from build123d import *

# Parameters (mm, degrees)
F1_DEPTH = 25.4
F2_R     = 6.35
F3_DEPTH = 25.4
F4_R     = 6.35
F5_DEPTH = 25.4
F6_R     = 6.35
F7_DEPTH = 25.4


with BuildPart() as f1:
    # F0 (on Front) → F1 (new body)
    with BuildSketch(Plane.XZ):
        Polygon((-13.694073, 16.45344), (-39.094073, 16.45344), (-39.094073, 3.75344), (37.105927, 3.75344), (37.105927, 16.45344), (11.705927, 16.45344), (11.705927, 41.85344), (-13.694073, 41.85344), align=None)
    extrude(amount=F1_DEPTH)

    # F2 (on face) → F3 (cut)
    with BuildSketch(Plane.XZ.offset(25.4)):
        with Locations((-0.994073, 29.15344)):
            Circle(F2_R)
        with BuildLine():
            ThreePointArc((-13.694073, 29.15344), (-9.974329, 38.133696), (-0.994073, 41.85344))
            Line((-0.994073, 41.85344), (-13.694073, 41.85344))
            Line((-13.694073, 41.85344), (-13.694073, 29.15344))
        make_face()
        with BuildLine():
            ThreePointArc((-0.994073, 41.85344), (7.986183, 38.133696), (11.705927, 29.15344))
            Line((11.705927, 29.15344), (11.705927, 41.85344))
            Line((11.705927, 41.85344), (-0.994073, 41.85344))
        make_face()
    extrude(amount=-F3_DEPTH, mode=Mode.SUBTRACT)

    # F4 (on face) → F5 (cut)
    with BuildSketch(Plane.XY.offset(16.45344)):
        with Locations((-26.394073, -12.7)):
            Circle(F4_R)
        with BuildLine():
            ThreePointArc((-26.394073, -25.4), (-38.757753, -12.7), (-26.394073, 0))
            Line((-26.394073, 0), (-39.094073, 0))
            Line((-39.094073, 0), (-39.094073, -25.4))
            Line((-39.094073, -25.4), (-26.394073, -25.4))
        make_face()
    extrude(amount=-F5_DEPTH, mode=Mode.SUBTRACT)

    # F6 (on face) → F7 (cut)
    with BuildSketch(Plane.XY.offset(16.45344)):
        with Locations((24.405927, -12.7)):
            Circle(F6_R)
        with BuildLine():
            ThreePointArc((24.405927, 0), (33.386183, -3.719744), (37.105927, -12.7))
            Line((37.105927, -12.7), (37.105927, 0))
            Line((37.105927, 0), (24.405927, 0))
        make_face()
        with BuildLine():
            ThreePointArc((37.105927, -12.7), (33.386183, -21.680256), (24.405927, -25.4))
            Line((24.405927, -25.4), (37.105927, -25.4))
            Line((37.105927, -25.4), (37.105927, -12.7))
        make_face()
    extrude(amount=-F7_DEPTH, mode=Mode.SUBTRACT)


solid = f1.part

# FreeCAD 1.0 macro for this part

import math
import FreeCAD as App
import Part
import Sketcher

V = App.Vector
Q = App.Units.Quantity


def add_polygon(sketch, points):
    """Adds a closed chain of lines whose ends are joined by coincident constraints."""
    first, n = sketch.GeometryCount, len(points)
    for a, b in zip(points, points[1:] + points[:1]):
        sketch.addGeometry(Part.LineSegment(App.Vector(*a, 0), App.Vector(*b, 0)), False)
    for i in range(n):
        sketch.addConstraint(Sketcher.Constraint("Coincident", first + i, 2, first + (i + 1) % n, 1))

doc = App.newDocument("Part")
body = doc.addObject("PartDesign::Body", "Body")

sketch1 = body.newObject("Sketcher::SketchObject", "Sketch")
sketch1.AttachmentSupport = (doc.getObject("XZ_Plane"), [""])
sketch1.MapMode = "FlatFace"
add_polygon(sketch1, [(-13.694073, 16.45344), (-39.094073, 16.45344), (-39.094073, 3.75344), (37.105927, 3.75344), (37.105927, 16.45344), (11.705927, 16.45344), (11.705927, 41.85344), (-13.694073, 41.85344)])
sketch1.addConstraint([
    Sketcher.Constraint("Horizontal", 0),
    Sketcher.Constraint("Vertical", 1),
    Sketcher.Constraint("Horizontal", 2),
    Sketcher.Constraint("Vertical", 3),
    Sketcher.Constraint("Horizontal", 4),
    Sketcher.Constraint("Vertical", 5),
    Sketcher.Constraint("Horizontal", 6),
    Sketcher.Constraint("Vertical", 7),
    Sketcher.Constraint("Horizontal", 0, 2, 3, 2),
    Sketcher.Constraint("Equal", 0, 4),
    Sketcher.Constraint("Equal", 4, 6),
    Sketcher.Constraint("Equal", 6, 5),
    Sketcher.Constraint("DistanceX", 0, 2, 0, 1, Q("1 in")),
    Sketcher.Constraint("DistanceY", 1, 2, 1, 1, Q("0.5 in")),
    Sketcher.Constraint("DistanceY", -1, 1, 0, 2, Q("16.45344 mm")),
    Sketcher.Constraint("DistanceX", 0, 2, -1, 1, Q("39.094073 mm")),
])
pad1 = body.newObject("PartDesign::Pad", "Pad")
pad1.Profile = sketch1
pad1.Length = Q("1 in")

sketch2 = body.newObject("Sketcher::SketchObject", "Sketch001")
sketch2.AttachmentSupport = (doc.getObject("XZ_Plane"), [""])
sketch2.MapMode = "FlatFace"
sketch2.AttachmentOffset = App.Placement(V(0, 0, 1 * 25.4), App.Rotation())
sketch2.addGeometry([
    Part.Circle(V(-0.994073, 29.15344, 0), V(0, 0, 1), 6.35),
    Part.ArcOfCircle(Part.Circle(V(-0.994073, 29.15344, 0), V(0, 0, 1), 12.7), math.radians(90.000002), math.radians(179.999998)),
    Part.LineSegment(V(-0.994073, 41.85344, 0), V(-13.694073, 41.85344, 0)),
    Part.LineSegment(V(-13.694073, 41.85344, 0), V(-13.694073, 29.15344, 0)),
    Part.ArcOfCircle(Part.Circle(V(-0.994073, 29.15344, 0), V(0, 0, 1), 12.7), math.radians(0.000002), math.radians(89.999998)),
    Part.LineSegment(V(11.705927, 29.15344, 0), V(11.705927, 41.85344, 0)),
    Part.LineSegment(V(11.705927, 41.85344, 0), V(-0.994073, 41.85344, 0)),
], False)
sketch2.addConstraint([
    Sketcher.Constraint("Tangent", 1, 1, 2, 1),
    Sketcher.Constraint("Coincident", 2, 2, 3, 1),
    Sketcher.Constraint("Tangent", 3, 2, 1, 2),
    Sketcher.Constraint("Tangent", 4, 1, 5, 1),
    Sketcher.Constraint("Coincident", 5, 2, 6, 1),
    Sketcher.Constraint("Tangent", 6, 2, 4, 2),
    Sketcher.Constraint("Horizontal", 2),
    Sketcher.Constraint("Vertical", 3),
    Sketcher.Constraint("Vertical", 5),
    Sketcher.Constraint("Horizontal", 6),
    Sketcher.Constraint("Coincident", 1, 3, 0, 3),
    Sketcher.Constraint("Coincident", 4, 3, 0, 3),
    Sketcher.Constraint("Equal", 1, 4),
    Sketcher.Constraint("Diameter", 0, Q("0.5 in")),
    Sketcher.Constraint("Radius", 1, Q("0.5 in")),
    Sketcher.Constraint("DistanceY", -1, 1, 0, 3, Q("29.15344 mm")),
    Sketcher.Constraint("DistanceX", 0, 3, -1, 1, Q("0.994073 mm")),
])
pocket1 = body.newObject("PartDesign::Pocket", "Pocket")
pocket1.Profile = sketch2
pocket1.Length = Q("1 in")

sketch3 = body.newObject("Sketcher::SketchObject", "Sketch002")
sketch3.AttachmentSupport = (doc.getObject("XY_Plane"), [""])
sketch3.MapMode = "FlatFace"
sketch3.AttachmentOffset = App.Placement(V(0, 0, 16.45344), App.Rotation())
sketch3.addGeometry([
    Part.Circle(V(-26.394073, -12.7, 0), V(0, 0, 1), 6.35),
    Part.ArcOfCircle(Part.Circle(V(-26.053179, -12.7, 0), V(0, 0, 1), 12.704574), math.radians(91.537568), math.radians(268.462432)),
    Part.LineSegment(V(-26.394073, 0, 0), V(-39.094073, 0, 0)),
    Part.LineSegment(V(-39.094073, 0, 0), V(-39.094073, -25.4, 0)),
    Part.LineSegment(V(-39.094073, -25.4, 0), V(-26.394073, -25.4, 0)),
], False)
sketch3.addConstraint([
    Sketcher.Constraint("Coincident", 1, 1, 2, 1),
    Sketcher.Constraint("Coincident", 2, 2, 3, 1),
    Sketcher.Constraint("Coincident", 3, 2, 4, 1),
    Sketcher.Constraint("Coincident", 4, 2, 1, 2),
    Sketcher.Constraint("Horizontal", 2),
    Sketcher.Constraint("Vertical", 3),
    Sketcher.Constraint("Horizontal", 4),
    Sketcher.Constraint("PointOnObject", 1, 1, -1),
    Sketcher.Constraint("Horizontal", 0, 3, 1, 3),
    Sketcher.Constraint("Vertical", 0, 3, 1, 1),
    Sketcher.Constraint("Vertical", 1, 1, 4, 2),
    Sketcher.Constraint("Diameter", 0, Q("0.5 in")),
    Sketcher.Constraint("DistanceY", 3, 2, 3, 1, Q("1 in")),
    Sketcher.Constraint("DistanceX", 2, 2, 2, 1, Q("0.5 in")),
    Sketcher.Constraint("Radius", 1, Q("12.704574 mm")),
    Sketcher.Constraint("DistanceX", 1, 3, -1, 1, Q("26.053179 mm")),
])
pocket2 = body.newObject("PartDesign::Pocket", "Pocket001")
pocket2.Profile = sketch3
pocket2.Length = Q("1 in")

sketch4 = body.newObject("Sketcher::SketchObject", "Sketch003")
sketch4.AttachmentSupport = (doc.getObject("XY_Plane"), [""])
sketch4.MapMode = "FlatFace"
sketch4.AttachmentOffset = App.Placement(V(0, 0, 16.45344), App.Rotation())
sketch4.addGeometry([
    Part.Circle(V(24.405927, -12.7, 0), V(0, 0, 1), 6.35),
    Part.ArcOfCircle(Part.Circle(V(24.405927, -12.7, 0), V(0, 0, 1), 12.7), math.radians(0.000002), math.radians(89.999998)),
    Part.LineSegment(V(37.105927, -12.7, 0), V(37.105927, 0, 0)),
    Part.LineSegment(V(37.105927, 0, 0), V(24.405927, 0, 0)),
    Part.ArcOfCircle(Part.Circle(V(24.405927, -12.7, 0), V(0, 0, 1), 12.7), math.radians(-89.999998), math.radians(-0.000002)),
    Part.LineSegment(V(24.405927, -25.4, 0), V(37.105927, -25.4, 0)),
    Part.LineSegment(V(37.105927, -25.4, 0), V(37.105927, -12.7, 0)),
], False)
sketch4.addConstraint([
    Sketcher.Constraint("Tangent", 1, 1, 2, 1),
    Sketcher.Constraint("Coincident", 2, 2, 3, 1),
    Sketcher.Constraint("Tangent", 3, 2, 1, 2),
    Sketcher.Constraint("Tangent", 4, 1, 5, 1),
    Sketcher.Constraint("Coincident", 5, 2, 6, 1),
    Sketcher.Constraint("Tangent", 6, 2, 4, 2),
    Sketcher.Constraint("Vertical", 2),
    Sketcher.Constraint("Horizontal", 3),
    Sketcher.Constraint("Horizontal", 5),
    Sketcher.Constraint("Vertical", 6),
    Sketcher.Constraint("Coincident", 1, 3, 0, 3),
    Sketcher.Constraint("Coincident", 4, 3, 0, 3),
    Sketcher.Constraint("Equal", 1, 4),
    Sketcher.Constraint("PointOnObject", 2, 2, -1),
    Sketcher.Constraint("Diameter", 0, Q("0.5 in")),
    Sketcher.Constraint("Radius", 1, Q("0.5 in")),
    Sketcher.Constraint("DistanceX", -1, 1, 0, 3, Q("24.405927 mm")),
])
pocket3 = body.newObject("PartDesign::Pocket", "Pocket002")
pocket3.Profile = sketch4
pocket3.Length = Q("1 in")

doc.recompute()
